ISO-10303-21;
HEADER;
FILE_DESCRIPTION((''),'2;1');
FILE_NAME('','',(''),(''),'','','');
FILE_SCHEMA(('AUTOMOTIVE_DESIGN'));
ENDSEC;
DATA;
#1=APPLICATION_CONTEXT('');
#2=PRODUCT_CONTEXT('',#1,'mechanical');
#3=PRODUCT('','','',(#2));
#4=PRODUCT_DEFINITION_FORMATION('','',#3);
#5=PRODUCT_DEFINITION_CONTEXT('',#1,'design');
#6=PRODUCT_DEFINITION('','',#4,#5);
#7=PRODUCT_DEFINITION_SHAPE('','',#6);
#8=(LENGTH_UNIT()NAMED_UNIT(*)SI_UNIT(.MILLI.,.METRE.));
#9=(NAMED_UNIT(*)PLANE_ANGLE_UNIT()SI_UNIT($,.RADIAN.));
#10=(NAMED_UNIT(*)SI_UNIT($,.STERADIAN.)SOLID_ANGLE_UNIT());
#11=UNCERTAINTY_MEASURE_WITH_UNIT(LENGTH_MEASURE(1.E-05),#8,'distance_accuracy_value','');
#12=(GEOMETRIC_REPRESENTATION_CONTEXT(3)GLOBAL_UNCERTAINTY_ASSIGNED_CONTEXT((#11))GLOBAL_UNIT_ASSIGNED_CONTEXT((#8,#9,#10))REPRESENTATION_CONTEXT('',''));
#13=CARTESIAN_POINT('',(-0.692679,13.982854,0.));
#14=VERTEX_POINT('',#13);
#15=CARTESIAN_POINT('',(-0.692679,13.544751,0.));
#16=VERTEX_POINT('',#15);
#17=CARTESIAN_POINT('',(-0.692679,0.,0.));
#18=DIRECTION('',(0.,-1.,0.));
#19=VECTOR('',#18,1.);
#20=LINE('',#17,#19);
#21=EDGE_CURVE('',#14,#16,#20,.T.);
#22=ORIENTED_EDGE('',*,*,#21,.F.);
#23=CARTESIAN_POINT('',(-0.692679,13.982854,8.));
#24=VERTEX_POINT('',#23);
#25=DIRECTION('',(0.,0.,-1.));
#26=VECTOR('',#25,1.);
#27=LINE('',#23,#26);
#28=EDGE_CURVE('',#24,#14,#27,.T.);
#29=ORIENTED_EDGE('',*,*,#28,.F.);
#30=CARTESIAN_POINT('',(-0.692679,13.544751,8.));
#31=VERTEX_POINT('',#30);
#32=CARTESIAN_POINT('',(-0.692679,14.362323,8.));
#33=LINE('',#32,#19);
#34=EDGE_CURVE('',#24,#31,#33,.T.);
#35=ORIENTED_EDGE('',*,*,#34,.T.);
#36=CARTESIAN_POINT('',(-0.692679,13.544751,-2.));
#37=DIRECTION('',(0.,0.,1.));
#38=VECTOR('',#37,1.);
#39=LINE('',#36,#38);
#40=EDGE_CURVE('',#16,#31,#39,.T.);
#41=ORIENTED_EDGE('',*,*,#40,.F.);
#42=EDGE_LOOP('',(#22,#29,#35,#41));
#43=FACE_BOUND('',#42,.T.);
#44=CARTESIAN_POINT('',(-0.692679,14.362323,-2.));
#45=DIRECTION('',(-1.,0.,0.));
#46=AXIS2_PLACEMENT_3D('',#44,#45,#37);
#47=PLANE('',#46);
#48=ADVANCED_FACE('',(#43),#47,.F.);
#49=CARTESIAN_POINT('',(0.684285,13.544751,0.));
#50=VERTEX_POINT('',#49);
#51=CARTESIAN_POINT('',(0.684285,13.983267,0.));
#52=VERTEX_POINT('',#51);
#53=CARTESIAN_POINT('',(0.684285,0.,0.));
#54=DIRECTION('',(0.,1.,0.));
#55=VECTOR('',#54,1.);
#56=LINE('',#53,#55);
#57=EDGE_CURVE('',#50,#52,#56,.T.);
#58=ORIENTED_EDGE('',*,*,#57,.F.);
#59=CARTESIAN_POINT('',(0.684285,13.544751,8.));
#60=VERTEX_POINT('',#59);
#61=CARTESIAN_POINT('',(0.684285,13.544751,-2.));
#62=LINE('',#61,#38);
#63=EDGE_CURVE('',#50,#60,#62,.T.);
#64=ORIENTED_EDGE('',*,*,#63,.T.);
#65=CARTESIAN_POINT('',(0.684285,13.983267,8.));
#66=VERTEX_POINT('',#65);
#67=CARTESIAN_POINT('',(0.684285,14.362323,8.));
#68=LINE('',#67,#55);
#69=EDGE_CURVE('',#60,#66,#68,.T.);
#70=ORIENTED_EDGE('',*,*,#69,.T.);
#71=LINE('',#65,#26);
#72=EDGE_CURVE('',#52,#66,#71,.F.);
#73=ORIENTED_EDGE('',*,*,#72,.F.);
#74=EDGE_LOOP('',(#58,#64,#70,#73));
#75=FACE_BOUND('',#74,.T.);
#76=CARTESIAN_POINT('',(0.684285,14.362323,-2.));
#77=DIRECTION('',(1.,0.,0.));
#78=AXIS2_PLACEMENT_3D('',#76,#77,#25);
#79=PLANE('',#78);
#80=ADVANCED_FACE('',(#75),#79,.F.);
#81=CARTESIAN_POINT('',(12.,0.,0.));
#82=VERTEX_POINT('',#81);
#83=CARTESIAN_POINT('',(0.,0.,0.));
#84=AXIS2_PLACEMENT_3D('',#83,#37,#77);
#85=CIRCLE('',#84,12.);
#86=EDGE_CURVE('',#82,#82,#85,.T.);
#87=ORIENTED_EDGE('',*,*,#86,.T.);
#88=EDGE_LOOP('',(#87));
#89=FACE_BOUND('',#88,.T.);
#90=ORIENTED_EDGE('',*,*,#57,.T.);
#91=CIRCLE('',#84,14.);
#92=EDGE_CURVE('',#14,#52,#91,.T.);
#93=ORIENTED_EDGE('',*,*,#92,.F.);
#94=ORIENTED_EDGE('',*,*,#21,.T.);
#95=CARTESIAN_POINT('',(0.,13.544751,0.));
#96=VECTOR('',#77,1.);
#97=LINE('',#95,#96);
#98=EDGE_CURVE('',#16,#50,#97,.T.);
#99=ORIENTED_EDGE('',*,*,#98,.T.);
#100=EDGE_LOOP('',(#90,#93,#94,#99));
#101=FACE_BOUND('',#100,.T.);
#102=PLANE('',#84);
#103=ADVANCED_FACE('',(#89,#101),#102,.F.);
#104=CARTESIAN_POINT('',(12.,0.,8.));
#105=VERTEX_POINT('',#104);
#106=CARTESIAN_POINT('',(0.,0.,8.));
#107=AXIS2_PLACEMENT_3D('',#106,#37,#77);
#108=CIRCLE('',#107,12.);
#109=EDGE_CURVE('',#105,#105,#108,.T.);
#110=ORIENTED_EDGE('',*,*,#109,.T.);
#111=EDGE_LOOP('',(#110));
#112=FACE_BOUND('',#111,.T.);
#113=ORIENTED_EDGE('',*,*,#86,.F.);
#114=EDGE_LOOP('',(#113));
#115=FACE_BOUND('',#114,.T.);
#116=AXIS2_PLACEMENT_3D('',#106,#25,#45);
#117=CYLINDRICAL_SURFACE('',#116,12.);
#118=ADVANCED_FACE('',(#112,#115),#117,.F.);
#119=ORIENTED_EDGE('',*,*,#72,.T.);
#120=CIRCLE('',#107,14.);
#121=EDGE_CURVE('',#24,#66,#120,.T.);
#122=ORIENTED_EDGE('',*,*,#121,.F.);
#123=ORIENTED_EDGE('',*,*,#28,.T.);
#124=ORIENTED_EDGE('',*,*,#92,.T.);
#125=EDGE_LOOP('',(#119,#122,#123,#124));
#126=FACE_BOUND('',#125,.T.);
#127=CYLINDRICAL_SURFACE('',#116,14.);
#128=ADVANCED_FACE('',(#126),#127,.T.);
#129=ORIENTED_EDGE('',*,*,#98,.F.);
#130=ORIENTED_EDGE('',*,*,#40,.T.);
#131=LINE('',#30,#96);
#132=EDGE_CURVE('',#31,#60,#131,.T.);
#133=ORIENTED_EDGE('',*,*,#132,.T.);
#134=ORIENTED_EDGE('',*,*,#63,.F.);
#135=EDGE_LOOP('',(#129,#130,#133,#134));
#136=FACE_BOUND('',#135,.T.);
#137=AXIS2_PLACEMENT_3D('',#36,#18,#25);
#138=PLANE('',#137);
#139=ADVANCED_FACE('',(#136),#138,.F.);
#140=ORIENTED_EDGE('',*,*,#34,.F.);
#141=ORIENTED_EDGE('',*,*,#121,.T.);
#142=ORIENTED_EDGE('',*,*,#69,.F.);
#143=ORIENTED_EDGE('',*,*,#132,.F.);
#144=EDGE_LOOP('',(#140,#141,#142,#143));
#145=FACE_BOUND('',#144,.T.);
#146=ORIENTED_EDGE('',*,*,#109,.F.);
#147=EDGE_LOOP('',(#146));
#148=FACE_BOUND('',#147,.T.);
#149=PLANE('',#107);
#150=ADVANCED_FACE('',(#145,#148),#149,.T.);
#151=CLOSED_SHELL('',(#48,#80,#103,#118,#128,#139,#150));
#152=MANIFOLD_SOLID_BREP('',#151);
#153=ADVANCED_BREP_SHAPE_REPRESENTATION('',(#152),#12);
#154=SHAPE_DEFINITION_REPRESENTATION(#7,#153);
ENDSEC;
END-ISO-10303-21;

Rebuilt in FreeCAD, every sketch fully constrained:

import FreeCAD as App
import Part
import Sketcher
from FreeCAD import Vector
Q = App.Units.Quantity


def add_polygon(sketch, points):
    """Adds a closed chain of lines whose ends are joined by coincident constraints."""
    first, n = sketch.GeometryCount, len(points)
    for a, b in zip(points, points[1:] + points[:1]):
        sketch.addGeometry(Part.LineSegment(App.Vector(*a, 0), App.Vector(*b, 0)), False)
    for i in range(n):
        sketch.addConstraint(Sketcher.Constraint("Coincident", first + i, 2, first + (i + 1) % n, 1))

doc = App.newDocument("Part")
body = doc.addObject("PartDesign::Body", "Body")

sketch1 = doc.addObject("Sketcher::SketchObject", "Sketch")
body.addObject(sketch1)
sketch1.AttachmentSupport = (doc.XY_Plane, [""])
sketch1.MapMode = "FlatFace"
sketch1.addGeometry([
    Part.Circle(Vector(0, 0, 0), Vector(0, 0, 1), 14),
    Part.Circle(Vector(0, 0, 0), Vector(0, 0, 1), 12),
], False)
sketch1.addConstraint([
    Sketcher.Constraint("Coincident", 0, 3, -1, 1),
    Sketcher.Constraint("Coincident", 1, 3, -1, 1),
    Sketcher.Constraint("Diameter", 0, Q("28 mm")),
    Sketcher.Constraint("Diameter", 1, Q("24 mm")),
])
pad1 = doc.addObject("PartDesign::Pad", "Pad")
body.addObject(pad1)
pad1.Profile = sketch1
pad1.Length = 8

sketch2 = doc.addObject("Sketcher::SketchObject", "Sketch001")
body.addObject(sketch2)
sketch2.AttachmentSupport = (doc.XY_Plane, [""])
sketch2.MapMode = "FlatFace"
sketch2.AttachmentOffset = App.Placement(Vector(0, 0, 8), App.Rotation())
add_polygon(sketch2, [(-0.7, 14.4), (-0.7, 13.5), (0.7, 13.5), (0.7, 14.4)])
sketch2.addConstraint([
    Sketcher.Constraint("Vertical", 0),
    Sketcher.Constraint("Horizontal", 1),
    Sketcher.Constraint("Vertical", 2),
    Sketcher.Constraint("Horizontal", 3),
    Sketcher.Constraint("DistanceX", 1, 1, 1, 2, Q("1.376964 mm")),
    Sketcher.Constraint("DistanceY", 0, 2, 0, 1, Q("0.817572 mm")),
    Sketcher.Constraint("DistanceX", 0, 2, -1, 1, Q("0.692679 mm")),
    Sketcher.Constraint("DistanceY", -1, 1, 0, 2, Q("13.544751 mm")),
])
pocket1 = doc.addObject("PartDesign::Pocket", "Pocket")
body.addObject(pocket1)
pocket1.Profile = sketch2
pocket1.Length = 10

doc.recompute()
